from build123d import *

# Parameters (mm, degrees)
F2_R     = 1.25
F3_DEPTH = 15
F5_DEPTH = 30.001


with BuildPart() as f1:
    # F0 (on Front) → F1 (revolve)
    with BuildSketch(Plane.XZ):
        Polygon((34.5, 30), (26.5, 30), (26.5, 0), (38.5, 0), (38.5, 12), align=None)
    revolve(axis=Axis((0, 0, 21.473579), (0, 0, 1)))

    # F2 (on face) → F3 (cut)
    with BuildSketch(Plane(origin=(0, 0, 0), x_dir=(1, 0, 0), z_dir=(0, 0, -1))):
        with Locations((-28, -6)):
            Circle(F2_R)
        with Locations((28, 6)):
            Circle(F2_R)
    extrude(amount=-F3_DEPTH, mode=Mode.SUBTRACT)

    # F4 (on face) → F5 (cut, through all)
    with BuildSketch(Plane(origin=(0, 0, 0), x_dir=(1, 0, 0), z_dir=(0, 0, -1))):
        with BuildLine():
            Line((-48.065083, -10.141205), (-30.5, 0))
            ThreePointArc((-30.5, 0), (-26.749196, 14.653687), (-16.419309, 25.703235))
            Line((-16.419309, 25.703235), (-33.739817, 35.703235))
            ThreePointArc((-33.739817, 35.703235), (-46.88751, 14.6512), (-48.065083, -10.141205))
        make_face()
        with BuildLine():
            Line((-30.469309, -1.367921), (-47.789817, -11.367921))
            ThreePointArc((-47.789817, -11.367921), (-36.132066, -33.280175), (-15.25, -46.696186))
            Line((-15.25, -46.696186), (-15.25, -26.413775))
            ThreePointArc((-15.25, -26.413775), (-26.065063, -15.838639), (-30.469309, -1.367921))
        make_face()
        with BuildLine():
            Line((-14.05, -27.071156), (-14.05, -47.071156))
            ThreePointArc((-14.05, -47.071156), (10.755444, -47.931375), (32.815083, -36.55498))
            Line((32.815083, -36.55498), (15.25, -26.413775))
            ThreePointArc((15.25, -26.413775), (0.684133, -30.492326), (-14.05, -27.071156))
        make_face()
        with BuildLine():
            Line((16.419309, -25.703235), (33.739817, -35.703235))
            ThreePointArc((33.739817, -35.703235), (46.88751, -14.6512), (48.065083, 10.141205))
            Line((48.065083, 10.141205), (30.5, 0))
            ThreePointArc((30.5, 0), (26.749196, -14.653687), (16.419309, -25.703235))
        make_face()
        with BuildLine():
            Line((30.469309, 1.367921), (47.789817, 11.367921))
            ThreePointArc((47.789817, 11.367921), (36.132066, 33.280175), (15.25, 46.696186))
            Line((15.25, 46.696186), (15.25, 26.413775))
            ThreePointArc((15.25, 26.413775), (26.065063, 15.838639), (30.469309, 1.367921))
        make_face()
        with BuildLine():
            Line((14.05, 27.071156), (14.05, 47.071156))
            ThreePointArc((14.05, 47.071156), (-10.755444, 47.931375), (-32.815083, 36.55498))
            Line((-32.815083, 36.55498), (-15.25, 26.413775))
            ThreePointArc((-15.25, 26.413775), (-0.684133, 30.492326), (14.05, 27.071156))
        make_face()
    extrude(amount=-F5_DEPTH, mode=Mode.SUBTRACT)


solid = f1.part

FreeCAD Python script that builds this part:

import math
import FreeCAD as App
import Part
import Sketcher

V = App.Vector
Q = App.Units.Quantity

doc = App.newDocument("Part")
body = doc.addObject("PartDesign::Body", "Body")

# Sketch on XZ plane
sketch1 = body.newObject("Sketcher::SketchObject", "Sketch")
sketch1.AttachmentSupport = (doc.getObject("XZ_Plane"), [""])
sketch1.MapMode = "FlatFace"
sketch1.addGeometry([
    Part.LineSegment(V(34.5, 30, 0), V(26.5, 30, 0)),  # 0
    Part.LineSegment(V(26.5, 30, 0), V(26.5, 0, 0)),  # 1
    Part.LineSegment(V(26.5, 0, 0), V(38.5, 0, 0)),  # 2
    Part.LineSegment(V(38.5, 0, 0), V(38.5, 12, 0)),  # 3
    Part.LineSegment(V(38.5, 12, 0), V(34.5, 30, 0)),  # 4
], False)
sketch1.addConstraint([
    Sketcher.Constraint("Coincident", 0, 2, 1, 1),
    Sketcher.Constraint("Coincident", 1, 2, 2, 1),
    Sketcher.Constraint("Coincident", 2, 2, 3, 1),
    Sketcher.Constraint("Coincident", 3, 2, 4, 1),
    Sketcher.Constraint("Coincident", 4, 2, 0, 1),
    Sketcher.Constraint("Horizontal", 0),
    Sketcher.Constraint("Vertical", 1),
    Sketcher.Constraint("Horizontal", 2),
    Sketcher.Constraint("Vertical", 3),
    Sketcher.Constraint("PointOnObject", 1, 2, -1),
    Sketcher.Constraint("Equal", 2, 3),
    Sketcher.Constraint("DistanceX", 0, 2, 0, 1, 8.0),
    Sketcher.Constraint("DistanceX", 2, 1, 2, 2, 12.0),
    Sketcher.Constraint("DistanceY", 1, 2, 1, 1, 30.0),
    Sketcher.Constraint("DistanceX", -1, 1, 0, 2, 26.5),
])
revolution = body.newObject("PartDesign::Revolution", "Revolution")
revolution.Profile = sketch1
revolution.ReferenceAxis = (sketch1, ["V_Axis"])
revolution.Angle = 360

# Sketch on XY plane
sketch2 = body.newObject("Sketcher::SketchObject", "Sketch001")
sketch2.AttachmentSupport = (doc.getObject("XY_Plane"), [""])
sketch2.MapMode = "FlatFace"
sketch2.addGeometry([
    Part.Circle(V(-28, 6, 0), V(0, 0, 1), 1.25),
    Part.Circle(V(28, -6, 0), V(0, 0, 1), 1.25),
], False)
sketch2.addConstraint([
    Sketcher.Constraint("Equal", 0, 1),
    Sketcher.Constraint("Symmetric", 0, 3, 1, 3, -1, 1),
    Sketcher.Constraint("Diameter", 0, 2.5),
    Sketcher.Constraint("DistanceX", 0, 3, -1, 1, 28.0),
    Sketcher.Constraint("DistanceY", -1, 1, 0, 3, 6.0),
])
pocket1 = body.newObject("PartDesign::Pocket", "Pocket")
pocket1.Profile = sketch2
pocket1.Length = 15
pocket1.Reversed = True

# Sketch on XY plane
sketch3 = body.newObject("Sketcher::SketchObject", "Sketch002")
sketch3.AttachmentSupport = (doc.getObject("XY_Plane"), [""])
sketch3.MapMode = "FlatFace"
sketch3.addGeometry([
    Part.LineSegment(V(-48.065083, 10.141205, 0), V(-30.5, 0, 0)),  # 0
    Part.ArcOfCircle(Part.Circle(V(-0.000004, -0.000002, 0), V(0, 0, 1), 30.499996), math.radians(179.999996), math.radians(237.429433)),  # 1
    Part.LineSegment(V(-16.419309, -25.703235, 0), V(-33.739817, -35.703235, 0)),  # 2
    Part.ArcOfCircle(Part.Circle(V(-0.000001, 0, 0), V(0, 0, 1), 49.123275), math.radians(168.085958), math.radians(226.619538)),  # 3
    Part.LineSegment(V(-30.469309, 1.367921, 0), V(-47.789817, 11.367921, 0)),  # 4
    Part.ArcOfCircle(Part.Circle(V(0.000002, -0.000001, 0), V(0, 0, 1), 49.123278), math.radians(108.085959), math.radians(166.619537)),  # 5
    Part.LineSegment(V(-15.25, 46.696186, 0), V(-15.25, 26.413775, 0)),  # 6
    Part.ArcOfCircle(Part.Circle(V(0.000001, -0.000001, 0), V(0, 0, 1), 30.500001), math.radians(120.000001), math.radians(177.429429)),  # 7
    Part.LineSegment(V(-14.05, 27.071156, 0), V(-14.05, 47.071156, 0)),  # 8
    Part.ArcOfCircle(Part.Circle(V(0.000001, 0.000004, 0), V(0, 0, 1), 49.123272), math.radians(48.085955), math.radians(106.61954)),  # 9
    Part.LineSegment(V(32.815083, 36.55498, 0), V(15.25, 26.413775, 0)),  # 10
    Part.ArcOfCircle(Part.Circle(V(0, -0.000002, 0), V(0, 0, 1), 30.500002), math.radians(60.000003), math.radians(117.429428)),  # 11
    Part.LineSegment(V(16.419309, 25.703235, 0), V(33.739817, 35.703235, 0)),  # 12
    Part.ArcOfCircle(Part.Circle(V(0.000001, 0, 0), V(0, 0, 1), 49.123275), math.radians(-11.914042), math.radians(46.619538)),  # 13
    Part.LineSegment(V(48.065083, -10.141205, 0), V(30.5, 0, 0)),  # 14
    Part.ArcOfCircle(Part.Circle(V(0.000004, 0.000002, 0), V(0, 0, 1), 30.499996), math.radians(-0.000004), math.radians(57.429433)),  # 15
    Part.LineSegment(V(30.469309, -1.367921, 0), V(47.789817, -11.367921, 0)),  # 16
    Part.ArcOfCircle(Part.Circle(V(-0.000002, 0.000001, 0), V(0, 0, 1), 49.123278), math.radians(-71.914041), math.radians(-13.380463)),  # 17
    Part.LineSegment(V(15.25, -46.696186, 0), V(15.25, -26.413775, 0)),  # 18
    Part.ArcOfCircle(Part.Circle(V(-0.000001, 0.000001, 0), V(0, 0, 1), 30.500001), math.radians(-59.999999), math.radians(-2.570571)),  # 19
    Part.LineSegment(V(14.05, -27.071156, 0), V(14.05, -47.071156, 0)),  # 20
    Part.ArcOfCircle(Part.Circle(V(-0.000001, -0.000004, 0), V(0, 0, 1), 49.123272), math.radians(-131.914045), math.radians(-73.38046)),  # 21
    Part.LineSegment(V(-32.815083, -36.55498, 0), V(-15.25, -26.413775, 0)),  # 22
    Part.ArcOfCircle(Part.Circle(V(0, 0.000002, 0), V(0, 0, 1), 30.500002), math.radians(-119.999997), math.radians(-62.570572)),  # 23
], False)
sketch3.addConstraint([
    Sketcher.Constraint("Coincident", 0, 2, 1, 1),
    Sketcher.Constraint("Coincident", 1, 2, 2, 1),
    Sketcher.Constraint("Coincident", 2, 2, 3, 2),
    Sketcher.Constraint("Coincident", 3, 1, 0, 1),
    Sketcher.Constraint("Coincident", 4, 2, 5, 2),
    Sketcher.Constraint("Coincident", 5, 1, 6, 1),
    Sketcher.Constraint("Coincident", 6, 2, 7, 1),
    Sketcher.Constraint("Coincident", 7, 2, 4, 1),
    Sketcher.Constraint("Coincident", 8, 2, 9, 2),
    Sketcher.Constraint("Coincident", 9, 1, 10, 1),
    Sketcher.Constraint("Coincident", 10, 2, 11, 1),
    Sketcher.Constraint("Coincident", 11, 2, 8, 1),
    Sketcher.Constraint("Coincident", 12, 2, 13, 2),
    Sketcher.Constraint("Coincident", 13, 1, 14, 1),
    Sketcher.Constraint("Coincident", 14, 2, 15, 1),
    Sketcher.Constraint("Coincident", 15, 2, 12, 1),
    Sketcher.Constraint("Coincident", 16, 2, 17, 2),
    Sketcher.Constraint("Coincident", 17, 1, 18, 1),
    Sketcher.Constraint("Coincident", 18, 2, 19, 1),
    Sketcher.Constraint("Coincident", 19, 2, 16, 1),
    Sketcher.Constraint("Coincident", 20, 2, 21, 2),
    Sketcher.Constraint("Coincident", 21, 1, 22, 1),
    Sketcher.Constraint("Coincident", 22, 2, 23, 1),
    Sketcher.Constraint("Coincident", 23, 2, 20, 1),
    Sketcher.Constraint("Vertical", 6),
    Sketcher.Constraint("Vertical", 8),
    Sketcher.Constraint("Vertical", 18),
    Sketcher.Constraint("Vertical", 20),
    Sketcher.Constraint("Coincident", 1, 3, -1, 1),
    Sketcher.Constraint("Coincident", 3, 3, -1, 1),
    Sketcher.Constraint("Coincident", 5, 3, -1, 1),
    Sketcher.Constraint("Coincident", 7, 3, -1, 1),
    Sketcher.Constraint("Coincident", 9, 3, -1, 1),
    Sketcher.Constraint("Coincident", 11, 3, -1, 1),
    Sketcher.Constraint("Coincident", 13, 3, -1, 1),
    Sketcher.Constraint("Coincident", 15, 3, -1, 1),
    Sketcher.Constraint("Coincident", 17, 3, -1, 1),
    Sketcher.Constraint("Coincident", 19, 3, -1, 1),
    Sketcher.Constraint("Coincident", 21, 3, -1, 1),
    Sketcher.Constraint("Coincident", 23, 3, -1, 1),
    Sketcher.Constraint("Equal", 7, 11),
    Sketcher.Constraint("Equal", 3, 13),
    Sketcher.Constraint("Equal", 1, 15),
    Sketcher.Constraint("Equal", 5, 17),
    Sketcher.Constraint("Equal", 11, 19),
    Sketcher.Constraint("Equal", 9, 21),
    Sketcher.Constraint("Equal", 19, 23),
    Sketcher.Constraint("PointOnObject", 0, 2, -1),
    Sketcher.Constraint("PointOnObject", 14, 2, -1),
    Sketcher.Constraint("Parallel", 0, 4),
    Sketcher.Constraint("Parallel", 2, 10),
    Sketcher.Constraint("Parallel", 10, 12),
    Sketcher.Constraint("Parallel", 4, 14),
    Sketcher.Constraint("Parallel", 14, 16),
    Sketcher.Constraint("Parallel", 12, 22),
    Sketcher.Constraint("Horizontal", 6, 2, 10, 2),
    Sketcher.Constraint("Horizontal", 18, 2, 22, 2),
    Sketcher.Constraint("Vertical", 10, 2, 17, 1),
    Sketcher.Constraint("Equal", 8, 20),
    Sketcher.Constraint("Equal", 2, 4),
    Sketcher.Constraint("Equal", 0, 10),
    Sketcher.Constraint("Equal", 4, 12),
    Sketcher.Constraint("Equal", 12, 16),
    Sketcher.Constraint("Radius", 7, 30.500001),
    Sketcher.Constraint("DistanceY", 8, 1, 8, 2, 20.0),
    Sketcher.Constraint("Angle", 0, Q("-29.999999 deg")),
    Sketcher.Constraint("Angle", 2, Q("-150 deg")),
    Sketcher.Constraint("Distance", 2, 20.0),
    Sketcher.Constraint("DistanceX", 0, 2, -1, 1, 30.5),
    Sketcher.Constraint("DistanceX", 5, 1, 8, 2, 1.2),
    Sketcher.Constraint("DistanceX", 11, 2, 10, 2, 29.3),
    Sketcher.Constraint("Radius", 5, 49.123278),
])
pocket2 = body.newObject("PartDesign::Pocket", "Pocket001")
pocket2.Profile = sketch3
pocket2.Type = "ThroughAll"
pocket2.Reversed = True

doc.recompute()
